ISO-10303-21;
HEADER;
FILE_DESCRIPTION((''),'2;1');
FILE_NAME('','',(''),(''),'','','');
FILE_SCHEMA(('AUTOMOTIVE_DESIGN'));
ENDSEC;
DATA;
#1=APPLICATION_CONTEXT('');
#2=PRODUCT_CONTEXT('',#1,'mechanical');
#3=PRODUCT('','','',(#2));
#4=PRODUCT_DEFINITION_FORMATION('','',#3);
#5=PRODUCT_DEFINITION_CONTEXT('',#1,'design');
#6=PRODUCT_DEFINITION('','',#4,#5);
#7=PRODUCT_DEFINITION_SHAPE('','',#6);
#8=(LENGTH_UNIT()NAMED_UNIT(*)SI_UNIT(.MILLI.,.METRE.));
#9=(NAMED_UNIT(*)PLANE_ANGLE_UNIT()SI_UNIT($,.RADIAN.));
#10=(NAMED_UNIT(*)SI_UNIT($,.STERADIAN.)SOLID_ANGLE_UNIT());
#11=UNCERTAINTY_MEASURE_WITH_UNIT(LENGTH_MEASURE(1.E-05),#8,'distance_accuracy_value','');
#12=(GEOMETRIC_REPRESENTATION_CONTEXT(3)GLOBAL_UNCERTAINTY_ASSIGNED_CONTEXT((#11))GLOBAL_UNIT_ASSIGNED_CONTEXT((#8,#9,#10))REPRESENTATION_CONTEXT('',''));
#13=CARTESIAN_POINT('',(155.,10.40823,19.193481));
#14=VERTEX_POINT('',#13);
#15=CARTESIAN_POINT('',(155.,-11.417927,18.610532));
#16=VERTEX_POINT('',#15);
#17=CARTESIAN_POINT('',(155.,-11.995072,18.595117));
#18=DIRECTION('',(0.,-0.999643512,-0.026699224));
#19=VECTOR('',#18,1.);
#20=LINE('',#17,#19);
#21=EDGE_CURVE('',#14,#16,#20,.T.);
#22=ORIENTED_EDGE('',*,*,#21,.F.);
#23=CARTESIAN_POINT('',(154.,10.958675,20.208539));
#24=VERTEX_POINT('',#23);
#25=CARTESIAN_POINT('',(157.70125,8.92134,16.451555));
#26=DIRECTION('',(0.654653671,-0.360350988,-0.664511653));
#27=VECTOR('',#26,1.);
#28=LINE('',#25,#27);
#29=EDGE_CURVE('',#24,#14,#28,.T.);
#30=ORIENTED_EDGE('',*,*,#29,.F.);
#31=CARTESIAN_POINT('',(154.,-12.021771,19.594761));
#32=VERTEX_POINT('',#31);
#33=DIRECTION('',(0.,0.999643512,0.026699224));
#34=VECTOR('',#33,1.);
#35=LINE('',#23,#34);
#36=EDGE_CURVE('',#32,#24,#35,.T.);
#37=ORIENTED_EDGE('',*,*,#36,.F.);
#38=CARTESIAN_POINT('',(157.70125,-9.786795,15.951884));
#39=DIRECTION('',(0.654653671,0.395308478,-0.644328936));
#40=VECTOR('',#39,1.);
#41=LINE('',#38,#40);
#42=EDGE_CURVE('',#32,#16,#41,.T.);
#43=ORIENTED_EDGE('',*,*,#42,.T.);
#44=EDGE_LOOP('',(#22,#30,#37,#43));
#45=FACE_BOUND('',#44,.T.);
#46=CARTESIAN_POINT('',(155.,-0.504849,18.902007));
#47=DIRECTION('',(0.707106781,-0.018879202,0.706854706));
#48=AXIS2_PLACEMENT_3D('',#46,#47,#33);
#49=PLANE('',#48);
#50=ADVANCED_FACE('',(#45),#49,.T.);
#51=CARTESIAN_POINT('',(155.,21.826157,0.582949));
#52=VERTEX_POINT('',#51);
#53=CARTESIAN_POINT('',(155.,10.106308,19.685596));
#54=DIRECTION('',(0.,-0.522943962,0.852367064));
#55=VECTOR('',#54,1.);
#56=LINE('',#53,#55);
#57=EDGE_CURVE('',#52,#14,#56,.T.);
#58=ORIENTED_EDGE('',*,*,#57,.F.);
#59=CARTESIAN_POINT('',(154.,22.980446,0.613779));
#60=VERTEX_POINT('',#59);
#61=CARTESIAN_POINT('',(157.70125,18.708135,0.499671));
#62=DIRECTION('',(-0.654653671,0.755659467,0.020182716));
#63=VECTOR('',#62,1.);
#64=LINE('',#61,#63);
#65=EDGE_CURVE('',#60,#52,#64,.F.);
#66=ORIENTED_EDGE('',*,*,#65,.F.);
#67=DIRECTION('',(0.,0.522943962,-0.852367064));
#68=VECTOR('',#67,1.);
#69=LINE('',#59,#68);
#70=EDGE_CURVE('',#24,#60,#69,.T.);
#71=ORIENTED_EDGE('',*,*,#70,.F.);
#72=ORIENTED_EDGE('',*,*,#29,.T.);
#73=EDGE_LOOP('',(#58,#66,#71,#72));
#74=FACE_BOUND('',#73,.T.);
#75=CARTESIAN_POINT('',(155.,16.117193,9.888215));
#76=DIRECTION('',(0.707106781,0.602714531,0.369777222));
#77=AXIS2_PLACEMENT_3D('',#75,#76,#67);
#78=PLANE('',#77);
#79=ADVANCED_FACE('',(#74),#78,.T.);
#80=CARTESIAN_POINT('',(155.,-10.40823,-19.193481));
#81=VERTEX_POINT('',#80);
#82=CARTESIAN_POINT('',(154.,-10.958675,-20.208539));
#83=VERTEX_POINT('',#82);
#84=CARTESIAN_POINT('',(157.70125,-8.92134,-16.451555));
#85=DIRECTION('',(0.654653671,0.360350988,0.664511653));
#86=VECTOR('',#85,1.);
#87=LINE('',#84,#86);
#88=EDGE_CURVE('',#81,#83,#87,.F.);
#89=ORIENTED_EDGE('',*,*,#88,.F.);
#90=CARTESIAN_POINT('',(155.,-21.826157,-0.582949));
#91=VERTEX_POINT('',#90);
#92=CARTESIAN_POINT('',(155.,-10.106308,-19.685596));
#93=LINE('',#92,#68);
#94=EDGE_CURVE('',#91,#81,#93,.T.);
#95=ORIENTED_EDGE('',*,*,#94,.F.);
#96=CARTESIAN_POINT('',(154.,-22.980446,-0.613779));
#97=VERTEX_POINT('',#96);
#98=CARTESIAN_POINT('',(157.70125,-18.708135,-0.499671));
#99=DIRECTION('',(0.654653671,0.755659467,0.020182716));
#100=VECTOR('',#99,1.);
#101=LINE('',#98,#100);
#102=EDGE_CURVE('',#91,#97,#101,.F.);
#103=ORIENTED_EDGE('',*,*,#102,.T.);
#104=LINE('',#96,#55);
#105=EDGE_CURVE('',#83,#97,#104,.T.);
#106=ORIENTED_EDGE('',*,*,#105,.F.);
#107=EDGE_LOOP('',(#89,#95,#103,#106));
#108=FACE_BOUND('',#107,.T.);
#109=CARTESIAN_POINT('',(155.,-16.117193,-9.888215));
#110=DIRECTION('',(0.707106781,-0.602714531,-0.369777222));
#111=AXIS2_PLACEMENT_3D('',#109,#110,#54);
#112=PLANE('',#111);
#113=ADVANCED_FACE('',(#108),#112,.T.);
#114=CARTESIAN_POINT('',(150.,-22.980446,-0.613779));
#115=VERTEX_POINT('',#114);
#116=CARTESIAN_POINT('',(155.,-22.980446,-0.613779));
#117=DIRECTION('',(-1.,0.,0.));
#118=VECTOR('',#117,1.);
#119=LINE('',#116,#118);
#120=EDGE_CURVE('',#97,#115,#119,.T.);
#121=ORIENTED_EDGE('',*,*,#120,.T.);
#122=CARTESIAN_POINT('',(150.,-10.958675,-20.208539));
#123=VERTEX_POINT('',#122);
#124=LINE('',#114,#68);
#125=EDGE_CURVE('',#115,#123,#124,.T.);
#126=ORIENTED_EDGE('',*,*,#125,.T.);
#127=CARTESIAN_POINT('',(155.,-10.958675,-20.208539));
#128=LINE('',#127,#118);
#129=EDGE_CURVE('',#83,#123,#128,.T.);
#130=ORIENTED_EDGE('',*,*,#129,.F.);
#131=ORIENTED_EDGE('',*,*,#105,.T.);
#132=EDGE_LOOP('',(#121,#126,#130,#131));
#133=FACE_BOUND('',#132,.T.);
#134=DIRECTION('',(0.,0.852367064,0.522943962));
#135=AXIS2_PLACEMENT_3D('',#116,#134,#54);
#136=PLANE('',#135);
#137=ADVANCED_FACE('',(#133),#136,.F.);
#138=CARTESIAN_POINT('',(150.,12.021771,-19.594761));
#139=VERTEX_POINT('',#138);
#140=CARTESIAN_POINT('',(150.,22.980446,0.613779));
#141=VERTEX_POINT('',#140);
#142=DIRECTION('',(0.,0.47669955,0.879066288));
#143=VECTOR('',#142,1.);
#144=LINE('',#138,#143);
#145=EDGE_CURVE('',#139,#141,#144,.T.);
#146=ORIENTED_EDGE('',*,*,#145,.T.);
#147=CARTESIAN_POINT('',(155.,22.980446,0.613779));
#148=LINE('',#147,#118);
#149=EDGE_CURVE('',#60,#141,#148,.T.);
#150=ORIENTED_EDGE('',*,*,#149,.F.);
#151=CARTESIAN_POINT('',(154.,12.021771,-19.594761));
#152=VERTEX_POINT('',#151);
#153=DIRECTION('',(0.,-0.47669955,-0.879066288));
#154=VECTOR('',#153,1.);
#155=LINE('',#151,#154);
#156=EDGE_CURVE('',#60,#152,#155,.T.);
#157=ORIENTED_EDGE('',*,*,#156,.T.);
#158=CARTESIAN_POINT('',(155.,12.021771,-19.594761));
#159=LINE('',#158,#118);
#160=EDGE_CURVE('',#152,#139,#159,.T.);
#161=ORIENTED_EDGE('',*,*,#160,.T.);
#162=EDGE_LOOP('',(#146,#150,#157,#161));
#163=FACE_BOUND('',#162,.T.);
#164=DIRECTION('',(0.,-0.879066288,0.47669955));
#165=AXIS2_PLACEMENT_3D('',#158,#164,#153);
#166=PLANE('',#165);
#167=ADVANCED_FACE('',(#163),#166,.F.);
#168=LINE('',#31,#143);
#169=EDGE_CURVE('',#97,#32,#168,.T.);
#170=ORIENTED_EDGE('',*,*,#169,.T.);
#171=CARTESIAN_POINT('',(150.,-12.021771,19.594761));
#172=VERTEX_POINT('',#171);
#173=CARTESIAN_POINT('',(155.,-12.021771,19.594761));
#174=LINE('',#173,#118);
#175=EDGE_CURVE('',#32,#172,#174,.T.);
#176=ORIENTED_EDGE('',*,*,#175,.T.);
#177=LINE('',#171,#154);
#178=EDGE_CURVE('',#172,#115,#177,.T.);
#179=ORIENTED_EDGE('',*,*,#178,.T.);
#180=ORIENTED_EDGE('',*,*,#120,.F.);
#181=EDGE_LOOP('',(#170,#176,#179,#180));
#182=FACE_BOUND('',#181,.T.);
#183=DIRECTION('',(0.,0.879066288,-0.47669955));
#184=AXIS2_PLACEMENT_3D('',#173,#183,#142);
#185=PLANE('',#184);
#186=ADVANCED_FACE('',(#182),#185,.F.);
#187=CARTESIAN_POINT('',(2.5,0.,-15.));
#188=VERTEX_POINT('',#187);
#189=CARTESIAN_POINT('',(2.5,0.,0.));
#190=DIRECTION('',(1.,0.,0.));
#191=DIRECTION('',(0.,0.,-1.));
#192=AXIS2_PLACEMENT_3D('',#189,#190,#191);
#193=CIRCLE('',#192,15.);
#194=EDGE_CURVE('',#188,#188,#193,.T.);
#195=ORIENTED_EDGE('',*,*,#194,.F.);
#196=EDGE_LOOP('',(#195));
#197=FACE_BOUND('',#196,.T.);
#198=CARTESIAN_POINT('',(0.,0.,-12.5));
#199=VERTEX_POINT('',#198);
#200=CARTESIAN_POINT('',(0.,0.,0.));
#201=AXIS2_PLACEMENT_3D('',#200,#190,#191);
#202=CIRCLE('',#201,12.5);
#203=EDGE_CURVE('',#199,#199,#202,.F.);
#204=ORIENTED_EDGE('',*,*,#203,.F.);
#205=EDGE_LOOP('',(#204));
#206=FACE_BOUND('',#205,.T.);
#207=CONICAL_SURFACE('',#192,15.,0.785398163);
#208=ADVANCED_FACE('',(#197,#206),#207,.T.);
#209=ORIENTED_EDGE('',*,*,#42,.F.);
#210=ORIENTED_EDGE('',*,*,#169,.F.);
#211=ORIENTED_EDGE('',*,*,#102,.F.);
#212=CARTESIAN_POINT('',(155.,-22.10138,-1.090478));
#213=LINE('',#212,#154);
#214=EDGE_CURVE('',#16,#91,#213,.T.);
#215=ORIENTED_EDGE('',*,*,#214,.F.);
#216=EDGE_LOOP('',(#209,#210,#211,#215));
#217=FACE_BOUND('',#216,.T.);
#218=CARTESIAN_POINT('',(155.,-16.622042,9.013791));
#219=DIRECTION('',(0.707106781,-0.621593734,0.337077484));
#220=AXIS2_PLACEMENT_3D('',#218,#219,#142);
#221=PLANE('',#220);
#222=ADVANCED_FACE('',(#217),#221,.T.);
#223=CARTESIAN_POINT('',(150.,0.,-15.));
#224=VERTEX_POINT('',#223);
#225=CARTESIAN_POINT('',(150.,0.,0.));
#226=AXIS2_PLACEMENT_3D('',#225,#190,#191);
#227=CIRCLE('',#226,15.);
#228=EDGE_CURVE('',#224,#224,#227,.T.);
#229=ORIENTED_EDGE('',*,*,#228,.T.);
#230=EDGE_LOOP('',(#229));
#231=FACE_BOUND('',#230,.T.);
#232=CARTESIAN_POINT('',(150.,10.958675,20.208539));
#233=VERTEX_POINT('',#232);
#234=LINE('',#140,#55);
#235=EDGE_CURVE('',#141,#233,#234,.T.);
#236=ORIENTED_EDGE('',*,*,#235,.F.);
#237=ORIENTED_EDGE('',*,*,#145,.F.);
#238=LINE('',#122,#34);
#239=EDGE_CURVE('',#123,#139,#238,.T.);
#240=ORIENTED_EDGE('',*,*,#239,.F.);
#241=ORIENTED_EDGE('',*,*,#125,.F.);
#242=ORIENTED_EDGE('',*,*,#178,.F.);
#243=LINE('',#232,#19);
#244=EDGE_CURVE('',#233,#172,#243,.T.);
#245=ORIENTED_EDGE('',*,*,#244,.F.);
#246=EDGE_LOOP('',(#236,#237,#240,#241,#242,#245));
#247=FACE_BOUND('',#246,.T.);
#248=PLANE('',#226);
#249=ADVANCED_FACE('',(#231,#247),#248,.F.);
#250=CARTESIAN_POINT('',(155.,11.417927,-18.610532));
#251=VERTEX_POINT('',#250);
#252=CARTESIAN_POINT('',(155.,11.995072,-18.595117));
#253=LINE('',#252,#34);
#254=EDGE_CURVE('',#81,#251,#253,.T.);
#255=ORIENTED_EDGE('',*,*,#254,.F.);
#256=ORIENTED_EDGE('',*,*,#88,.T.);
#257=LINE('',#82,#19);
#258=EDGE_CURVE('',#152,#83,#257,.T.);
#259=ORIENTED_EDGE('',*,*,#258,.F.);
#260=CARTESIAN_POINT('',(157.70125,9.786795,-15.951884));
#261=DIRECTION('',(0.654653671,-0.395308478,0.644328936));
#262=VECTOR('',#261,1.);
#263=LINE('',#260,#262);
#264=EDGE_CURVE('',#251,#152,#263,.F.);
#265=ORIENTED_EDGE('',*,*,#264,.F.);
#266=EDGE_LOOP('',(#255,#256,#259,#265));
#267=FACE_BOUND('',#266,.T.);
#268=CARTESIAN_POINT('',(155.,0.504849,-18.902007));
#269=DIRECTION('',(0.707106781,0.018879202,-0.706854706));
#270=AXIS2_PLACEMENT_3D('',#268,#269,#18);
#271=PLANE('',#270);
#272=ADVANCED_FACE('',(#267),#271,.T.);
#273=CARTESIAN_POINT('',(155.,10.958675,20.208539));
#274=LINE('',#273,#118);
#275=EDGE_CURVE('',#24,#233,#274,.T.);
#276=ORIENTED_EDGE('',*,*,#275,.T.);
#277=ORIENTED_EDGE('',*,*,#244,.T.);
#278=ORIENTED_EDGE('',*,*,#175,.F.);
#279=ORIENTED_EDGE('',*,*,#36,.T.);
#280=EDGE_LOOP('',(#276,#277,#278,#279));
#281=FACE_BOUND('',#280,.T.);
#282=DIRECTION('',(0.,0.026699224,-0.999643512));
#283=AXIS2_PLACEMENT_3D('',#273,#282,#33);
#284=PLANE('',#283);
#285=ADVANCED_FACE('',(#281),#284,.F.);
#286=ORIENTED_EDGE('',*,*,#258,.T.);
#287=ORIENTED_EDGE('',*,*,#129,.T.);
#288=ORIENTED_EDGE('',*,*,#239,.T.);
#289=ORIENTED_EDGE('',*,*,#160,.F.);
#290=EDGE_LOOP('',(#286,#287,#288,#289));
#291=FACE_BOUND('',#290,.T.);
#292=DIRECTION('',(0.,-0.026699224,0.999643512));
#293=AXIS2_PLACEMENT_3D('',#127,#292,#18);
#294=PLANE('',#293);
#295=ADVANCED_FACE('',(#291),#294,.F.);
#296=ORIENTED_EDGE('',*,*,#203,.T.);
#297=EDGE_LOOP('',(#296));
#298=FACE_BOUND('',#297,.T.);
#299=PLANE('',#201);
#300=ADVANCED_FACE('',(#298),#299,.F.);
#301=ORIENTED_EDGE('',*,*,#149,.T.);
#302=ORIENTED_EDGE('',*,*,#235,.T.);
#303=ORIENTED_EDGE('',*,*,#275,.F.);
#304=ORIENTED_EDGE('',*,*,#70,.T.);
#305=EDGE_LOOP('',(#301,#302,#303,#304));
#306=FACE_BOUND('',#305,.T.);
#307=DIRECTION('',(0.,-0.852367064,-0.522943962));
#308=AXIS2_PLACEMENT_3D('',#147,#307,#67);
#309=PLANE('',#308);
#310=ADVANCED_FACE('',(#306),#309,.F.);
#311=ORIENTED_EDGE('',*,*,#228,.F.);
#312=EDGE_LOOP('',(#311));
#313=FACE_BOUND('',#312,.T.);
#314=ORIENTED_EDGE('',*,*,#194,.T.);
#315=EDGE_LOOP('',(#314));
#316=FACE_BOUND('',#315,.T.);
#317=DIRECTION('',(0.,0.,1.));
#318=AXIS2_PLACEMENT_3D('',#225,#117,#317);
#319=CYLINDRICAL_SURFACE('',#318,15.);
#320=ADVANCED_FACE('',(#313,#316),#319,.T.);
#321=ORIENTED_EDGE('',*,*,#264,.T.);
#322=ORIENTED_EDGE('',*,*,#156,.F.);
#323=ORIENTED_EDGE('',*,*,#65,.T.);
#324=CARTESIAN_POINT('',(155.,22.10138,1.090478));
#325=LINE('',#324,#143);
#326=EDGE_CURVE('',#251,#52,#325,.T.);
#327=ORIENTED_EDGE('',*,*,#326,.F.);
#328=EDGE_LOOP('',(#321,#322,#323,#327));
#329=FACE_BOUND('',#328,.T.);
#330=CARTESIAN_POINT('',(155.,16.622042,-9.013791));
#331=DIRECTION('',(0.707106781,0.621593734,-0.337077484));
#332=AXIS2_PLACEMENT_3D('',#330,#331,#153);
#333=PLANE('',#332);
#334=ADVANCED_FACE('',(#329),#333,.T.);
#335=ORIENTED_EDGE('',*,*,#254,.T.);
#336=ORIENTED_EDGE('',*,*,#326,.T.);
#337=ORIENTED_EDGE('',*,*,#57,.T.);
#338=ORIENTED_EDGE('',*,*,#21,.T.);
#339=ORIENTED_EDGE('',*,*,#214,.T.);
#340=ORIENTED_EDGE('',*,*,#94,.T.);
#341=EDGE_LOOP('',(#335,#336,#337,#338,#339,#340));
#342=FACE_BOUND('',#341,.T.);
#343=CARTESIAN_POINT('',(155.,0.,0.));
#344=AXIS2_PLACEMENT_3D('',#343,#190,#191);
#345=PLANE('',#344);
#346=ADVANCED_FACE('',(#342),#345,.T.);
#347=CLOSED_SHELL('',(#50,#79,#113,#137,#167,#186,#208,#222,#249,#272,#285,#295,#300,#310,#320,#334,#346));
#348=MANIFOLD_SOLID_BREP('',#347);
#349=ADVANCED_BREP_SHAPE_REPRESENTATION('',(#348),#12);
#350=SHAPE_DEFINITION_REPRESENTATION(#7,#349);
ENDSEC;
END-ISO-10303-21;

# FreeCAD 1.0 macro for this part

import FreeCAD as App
import Part
import Sketcher
from FreeCAD import Vector


def edges_at(feature, points):
    """Names of the edges that pass closest to the given points."""
    edges = feature.Shape.Edges
    near = lambda p: min(range(len(edges)), key=lambda i: edges[i].distToShape(Part.Vertex(*p))[0])
    return sorted({f"Edge{near(p) + 1}" for p in points})

doc = App.newDocument("Part")
body = doc.addObject("PartDesign::Body", "Body")

# Sketch on YZ plane
sketch1 = doc.addObject("Sketcher::SketchObject", "Sketch")
body.addObject(sketch1)
sketch1.AttachmentSupport = (doc.YZ_Plane, [""])
sketch1.MapMode = "FlatFace"
sketch1.addGeometry(Part.Circle(Vector(0, 0, 0), Vector(0, 0, 1), 15), False)
sketch1.addConstraint(Sketcher.Constraint("Coincident", 0, 3, -1, 1))
sketch1.addConstraint(Sketcher.Constraint("Diameter", 0, 30.0))
pad1 = doc.addObject("PartDesign::Pad", "Pad")
body.addObject(pad1)
pad1.Profile = sketch1
pad1.Length = 150

# Sketch on YZ plane
sketch2 = doc.addObject("Sketcher::SketchObject", "Sketch001")
body.addObject(sketch2)
sketch2.AttachmentSupport = (doc.YZ_Plane, [""])
sketch2.MapMode = "FlatFace"
sketch2.AttachmentOffset = App.Placement(Vector(0, 0, 150), App.Rotation())
sketch2.addGeometry(Part.LineSegment(Vector(11, 20, 0), Vector(-12, 20, 0)), False)
sketch2.addGeometry(Part.LineSegment(Vector(-12, 20, 0), Vector(-23, -1, 0)), False)
sketch2.addGeometry(Part.LineSegment(Vector(-23, -1, 0), Vector(-11, -20, 0)), False)
sketch2.addGeometry(Part.LineSegment(Vector(-11, -20, 0), Vector(12, -20, 0)), False)
sketch2.addGeometry(Part.LineSegment(Vector(12, -20, 0), Vector(23, 1, 0)), False)
sketch2.addGeometry(Part.LineSegment(Vector(23, 1, 0), Vector(11, 20, 0)), False)
sketch2.addConstraint(Sketcher.Constraint("Coincident", 0, 2, 1, 1))
sketch2.addConstraint(Sketcher.Constraint("Coincident", 1, 2, 2, 1))
sketch2.addConstraint(Sketcher.Constraint("Coincident", 2, 2, 3, 1))
sketch2.addConstraint(Sketcher.Constraint("Coincident", 3, 2, 4, 1))
sketch2.addConstraint(Sketcher.Constraint("Coincident", 4, 2, 5, 1))
sketch2.addConstraint(Sketcher.Constraint("Coincident", 5, 2, 0, 1))
sketch2.addConstraint(Sketcher.Constraint("Symmetric", 0, 2, 3, 2, -1, 1))
sketch2.addConstraint(Sketcher.Constraint("Symmetric", 1, 2, 4, 2, -1, 1))
sketch2.addConstraint(Sketcher.Constraint("Symmetric", 2, 2, 5, 2, -1, 1))
sketch2.addConstraint(Sketcher.Constraint("Equal", 0, 1))
sketch2.addConstraint(Sketcher.Constraint("Equal", 1, 2))
sketch2.addConstraint(Sketcher.Constraint("DistanceY", 2, 2, 0, 2, 39.8033))
sketch2.addConstraint(Sketcher.Constraint("Distance", 0, 22.988641))
sketch2.addConstraint(Sketcher.Constraint("DistanceX", 0, 2, -1, 1, 12.021771))
sketch2.addConstraint(Sketcher.Constraint("DistanceY", -1, 1, 0, 2, 19.594761))
pad2 = doc.addObject("PartDesign::Pad", "Pad001")
body.addObject(pad2)
pad2.Profile = sketch2
pad2.Length = 5
doc.recompute()

chamfer = doc.addObject("PartDesign::Chamfer", "Chamfer")
body.addObject(chamfer)
chamfer.Base = (pad2, edges_at(pad2, [
    (155, 16.97, 10.411),
    (155, -0.532, 19.902),
    (155, -17.501, 9.49),
    (155, -16.97, -10.411),
    (155, 0.532, -19.902),
    (155, 17.501, -9.49),
]))
chamfer.Size = 1
doc.recompute()

chamfer2 = doc.addObject("PartDesign::Chamfer", "Chamfer001")
body.addObject(chamfer2)
chamfer2.Base = (chamfer, edges_at(chamfer, [(0, 0, 15)]))
chamfer2.Size = 2.5

doc.recompute()
